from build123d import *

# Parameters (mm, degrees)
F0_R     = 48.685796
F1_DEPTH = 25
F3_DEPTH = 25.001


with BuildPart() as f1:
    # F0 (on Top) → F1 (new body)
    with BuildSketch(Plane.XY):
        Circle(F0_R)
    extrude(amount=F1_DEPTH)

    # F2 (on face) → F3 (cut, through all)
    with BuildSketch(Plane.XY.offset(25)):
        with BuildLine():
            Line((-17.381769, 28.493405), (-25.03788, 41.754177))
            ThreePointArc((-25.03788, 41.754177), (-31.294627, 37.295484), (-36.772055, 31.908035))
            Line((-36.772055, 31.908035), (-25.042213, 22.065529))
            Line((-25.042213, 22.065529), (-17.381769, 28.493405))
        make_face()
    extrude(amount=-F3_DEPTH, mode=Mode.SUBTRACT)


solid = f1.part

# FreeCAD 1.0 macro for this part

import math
import FreeCAD as App
import Part
import Sketcher

V = App.Vector
Q = App.Units.Quantity

doc = App.newDocument("Part")
params = doc.addObject("Spreadsheet::Sheet", "Params")
for row, (alias, value) in enumerate([
    ("pad1_length", "25 mm"),
    ("sketch2_length", "10 mm"),
], start=1):
    params.set(f"A{row}", alias)
    params.set(f"B{row}", "=" + value)
    params.setAlias(f"B{row}", alias)

body = doc.addObject("PartDesign::Body", "Body")

# Sketch on XY plane
sketch1 = body.newObject("Sketcher::SketchObject", "Sketch")
sketch1.AttachmentSupport = (doc.getObject("XY_Plane"), [""])
sketch1.MapMode = "FlatFace"
sketch1.addGeometry(Part.Circle(V(0, 0, 0), V(0, 0, 1), 48.685796), False)
sketch1.addConstraint([
    Sketcher.Constraint("Coincident", 0, 3, -1, 1),
    Sketcher.Constraint("Diameter", 0, 97.371592),
])
pad1 = body.newObject("PartDesign::Pad", "Pad")
pad1.Profile = sketch1
pad1.setExpression("Length", "Params.pad1_length")

# Sketch on XY plane
sketch2 = body.newObject("Sketcher::SketchObject", "Sketch001")
sketch2.AttachmentSupport = (doc.getObject("XY_Plane"), [""])
sketch2.MapMode = "FlatFace"
sketch2.AttachmentOffset = App.Placement(V(0, 0, 25), App.Rotation())
sketch2.addGeometry([
    Part.LineSegment(V(-17.381769, 28.493405, 0), V(-25.03788, 41.754177, 0)),
    Part.ArcOfCircle(Part.Circle(V(-0.000041, 0.000049, 0), V(0, 0, 1), 48.685733), math.radians(120.948985), math.radians(139.051015)),
    Part.LineSegment(V(-36.772055, 31.908035, 0), V(-25.042213, 22.065529, 0)),
    Part.LineSegment(V(-25.042213, 22.065529, 0), V(-17.381769, 28.493405, 0)),
], False)
sketch2.addConstraint([
    Sketcher.Constraint("Coincident", 0, 2, 1, 1),
    Sketcher.Constraint("Coincident", 1, 2, 2, 1),
    Sketcher.Constraint("Coincident", 2, 2, 3, 1),
    Sketcher.Constraint("Coincident", 3, 2, 0, 1),
    Sketcher.Constraint("Equal", 0, 2),
    Sketcher.Constraint("Angle", 0, Q("120.000002 deg")),
    Sketcher.Constraint("Angle", 2, Q("-40 deg")),
    Sketcher.Constraint("Angle", 3, Q("40.000001 deg")),
    Sketcher.Constraint("Distance", 3, 10.0),
    Sketcher.Constraint("Radius", 1, 48.685733),
    Sketcher.Constraint("Distance", 0, 15.312221),
    Sketcher.Constraint("DistanceX", 0, 2, -1, 1, 25.03788),
    Sketcher.Constraint("DistanceY", -1, 1, 2, 2, 22.065529),
])
sketch2.setExpression("Constraints[8]", "Params.sketch2_length")
pocket1 = body.newObject("PartDesign::Pocket", "Pocket")
pocket1.Profile = sketch2
pocket1.Type = "ThroughAll"

doc.recompute()
